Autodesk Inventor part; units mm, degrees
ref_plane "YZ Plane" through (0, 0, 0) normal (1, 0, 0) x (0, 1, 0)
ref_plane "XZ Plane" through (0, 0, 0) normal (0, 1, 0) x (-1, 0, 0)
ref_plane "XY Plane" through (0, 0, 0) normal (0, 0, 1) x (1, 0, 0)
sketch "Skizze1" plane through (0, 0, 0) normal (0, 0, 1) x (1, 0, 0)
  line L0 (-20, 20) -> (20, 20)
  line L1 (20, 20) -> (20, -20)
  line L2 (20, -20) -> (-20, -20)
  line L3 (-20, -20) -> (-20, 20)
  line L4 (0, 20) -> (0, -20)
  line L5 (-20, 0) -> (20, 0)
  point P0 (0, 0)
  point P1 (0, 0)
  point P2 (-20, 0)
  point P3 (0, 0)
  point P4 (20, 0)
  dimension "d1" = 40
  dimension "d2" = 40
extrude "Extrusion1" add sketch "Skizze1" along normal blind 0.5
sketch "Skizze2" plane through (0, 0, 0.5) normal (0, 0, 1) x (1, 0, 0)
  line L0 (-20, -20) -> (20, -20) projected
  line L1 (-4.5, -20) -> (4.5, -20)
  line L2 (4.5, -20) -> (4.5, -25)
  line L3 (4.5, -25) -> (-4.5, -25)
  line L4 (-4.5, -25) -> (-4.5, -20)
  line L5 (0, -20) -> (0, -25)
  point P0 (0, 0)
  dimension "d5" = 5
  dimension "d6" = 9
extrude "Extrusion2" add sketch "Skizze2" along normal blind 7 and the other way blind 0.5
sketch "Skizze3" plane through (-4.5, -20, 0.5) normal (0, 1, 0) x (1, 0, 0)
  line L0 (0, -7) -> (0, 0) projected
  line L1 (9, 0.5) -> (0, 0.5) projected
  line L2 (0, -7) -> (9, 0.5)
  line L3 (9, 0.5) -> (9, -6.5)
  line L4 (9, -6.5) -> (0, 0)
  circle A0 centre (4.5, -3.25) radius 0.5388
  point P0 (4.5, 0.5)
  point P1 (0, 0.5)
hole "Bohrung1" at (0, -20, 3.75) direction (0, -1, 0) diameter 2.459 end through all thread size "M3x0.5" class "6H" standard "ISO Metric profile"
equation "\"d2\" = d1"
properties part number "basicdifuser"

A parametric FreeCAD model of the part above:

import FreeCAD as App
import Part
import Sketcher
from FreeCAD import Vector


def add_polygon(sketch, points):
    """Adds a closed chain of lines whose ends are joined by coincident constraints."""
    first, n = sketch.GeometryCount, len(points)
    for a, b in zip(points, points[1:] + points[:1]):
        sketch.addGeometry(Part.LineSegment(App.Vector(*a, 0), App.Vector(*b, 0)), False)
    for i in range(n):
        sketch.addConstraint(Sketcher.Constraint("Coincident", first + i, 2, first + (i + 1) % n, 1))

doc = App.newDocument("Part")
body = doc.addObject("PartDesign::Body", "Body")

# Sketch on XY plane
sketch1 = body.newObject("Sketcher::SketchObject", "Sketch")
sketch1.AttachmentSupport = (doc.getObject("XY_Plane"), [""])
sketch1.MapMode = "FlatFace"
add_polygon(sketch1, [(-20, 20), (-20, -20), (20, -20), (20, 20)])  # lines 0-3
sketch1.addConstraint(Sketcher.Constraint("Vertical", 0))
sketch1.addConstraint(Sketcher.Constraint("Horizontal", 1))
sketch1.addConstraint(Sketcher.Constraint("Vertical", 2))
sketch1.addConstraint(Sketcher.Constraint("Horizontal", 3))
sketch1.addConstraint(Sketcher.Constraint("Symmetric", 0, 2, 2, 2, -1, 1))
sketch1.addConstraint(Sketcher.Constraint("Equal", 3, 0))
sketch1.addConstraint(Sketcher.Constraint("DistanceX", 1, 1, 1, 2, 40.0))
pad1 = body.newObject("PartDesign::Pad", "Pad")
pad1.Profile = sketch1
pad1.Length = 0.5

# Sketch on XY plane
sketch2 = body.newObject("Sketcher::SketchObject", "Sketch001")
sketch2.AttachmentSupport = (doc.getObject("XY_Plane"), [""])
sketch2.MapMode = "FlatFace"
sketch2.AttachmentOffset = App.Placement(Vector(0, 0, 0.5), App.Rotation())
add_polygon(sketch2, [(-4.5, -20), (-4.5, -25), (4.5, -25), (4.5, -20)])  # lines 0-3
sketch2.addConstraint(Sketcher.Constraint("Vertical", 0))
sketch2.addConstraint(Sketcher.Constraint("Horizontal", 1))
sketch2.addConstraint(Sketcher.Constraint("Vertical", 2))
sketch2.addConstraint(Sketcher.Constraint("Horizontal", 3))
sketch2.addConstraint(Sketcher.Constraint("DistanceX", 1, 1, 1, 2, 9.0))
sketch2.addConstraint(Sketcher.Constraint("DistanceY", 0, 2, 0, 1, 5.0))
sketch2.addConstraint(Sketcher.Constraint("DistanceY", 0, 2, -1, 1, 25.0))
sketch2.addConstraint(Sketcher.Constraint("DistanceX", 0, 2, -1, 1, 4.5))
pad2 = body.newObject("PartDesign::Pad", "Pad001")
pad2.Profile = sketch2
pad2.Type = "TwoLengths"
pad2.Length = 7
pad2.Length2 = 0.5

# Sketch on XZ plane
sketch3 = body.newObject("Sketcher::SketchObject", "Sketch002")
sketch3.AttachmentSupport = (doc.getObject("XZ_Plane"), [""])
sketch3.MapMode = "FlatFace"
sketch3.AttachmentOffset = App.Placement(Vector(0, 0, 20), App.Rotation())
sketch3.addGeometry(Part.Circle(Vector(0, 3.75, 0), Vector(0, 0, 1), 1.2295), False)
sketch3.addConstraint(Sketcher.Constraint("PointOnObject", 0, 3, -2))
sketch3.addConstraint(Sketcher.Constraint("Diameter", 0, 2.459))
sketch3.addConstraint(Sketcher.Constraint("DistanceY", -1, 1, 0, 3, 3.75))
doc.recompute()
hole = body.newObject("PartDesign::Hole", "Hole")
hole.Profile = sketch3
hole.ThreadType = "None"
hole.Diameter = 2.459
hole.DepthType = "ThroughAll"
hole.Reversed = True

doc.recompute()
